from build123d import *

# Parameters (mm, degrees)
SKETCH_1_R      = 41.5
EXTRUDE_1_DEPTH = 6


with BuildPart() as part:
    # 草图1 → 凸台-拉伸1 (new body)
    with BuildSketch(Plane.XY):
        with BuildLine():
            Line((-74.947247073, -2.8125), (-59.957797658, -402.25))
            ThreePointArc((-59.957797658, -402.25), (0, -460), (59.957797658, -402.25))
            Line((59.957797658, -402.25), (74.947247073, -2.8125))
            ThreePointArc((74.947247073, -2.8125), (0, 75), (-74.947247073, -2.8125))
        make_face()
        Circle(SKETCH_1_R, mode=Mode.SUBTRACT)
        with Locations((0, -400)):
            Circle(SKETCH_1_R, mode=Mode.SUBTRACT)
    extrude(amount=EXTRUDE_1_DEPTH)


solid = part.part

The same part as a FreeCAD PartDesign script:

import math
import FreeCAD as App
import Part
import Sketcher
from FreeCAD import Vector
Q = App.Units.Quantity

doc = App.newDocument("Part")
body = doc.addObject("PartDesign::Body", "Body")

# Sketch on XY plane
sketch1 = body.newObject("Sketcher::SketchObject", "Sketch")
sketch1.AttachmentSupport = (doc.getObject("XY_Plane"), [""])
sketch1.MapMode = "FlatFace"
sketch1.addGeometry([
    Part.LineSegment(Vector(-74.947247, -2.8125, 0), Vector(-59.957798, -402.25, 0)),  # 0
    Part.ArcOfCircle(Part.Circle(Vector(0, -400, 0), Vector(0, 0, 1), 60), math.radians(-177.850904), math.radians(-2.149096)),  # 1
    Part.LineSegment(Vector(59.957798, -402.25, 0), Vector(74.947247, -2.8125, 0)),  # 2
    Part.ArcOfCircle(Part.Circle(Vector(0, 0, 0), Vector(0, 0, 1), 75), math.radians(-2.149096), math.radians(182.149096)),  # 3
    Part.Circle(Vector(0, -400, 0), Vector(0, 0, 1), 41.5),  # 4
    Part.Circle(Vector(0, 0, 0), Vector(0, 0, 1), 41.5),  # 5
], False)
sketch1.addConstraint([
    Sketcher.Constraint("Tangent", 0, 2, 1, 1),
    Sketcher.Constraint("Tangent", 1, 2, 2, 1),
    Sketcher.Constraint("Tangent", 2, 2, 3, 1),
    Sketcher.Constraint("Tangent", 3, 2, 0, 1),
    Sketcher.Constraint("Coincident", 3, 3, -1, 1),
    Sketcher.Constraint("Coincident", 5, 3, -1, 1),
    Sketcher.Constraint("Coincident", 4, 3, 1, 3),
    Sketcher.Constraint("Equal", 4, 5),
    Sketcher.Constraint("PointOnObject", 1, 3, -2),
    Sketcher.Constraint("Diameter", 4, Q("83 mm")),
    Sketcher.Constraint("Radius", 1, Q("60 mm")),
    Sketcher.Constraint("Radius", 3, Q("75 mm")),
    Sketcher.Constraint("DistanceY", 1, 3, -1, 1, Q("400 mm")),
])
pad1 = body.newObject("PartDesign::Pad", "Pad")
pad1.Profile = sketch1
pad1.Length = 6

doc.recompute()
